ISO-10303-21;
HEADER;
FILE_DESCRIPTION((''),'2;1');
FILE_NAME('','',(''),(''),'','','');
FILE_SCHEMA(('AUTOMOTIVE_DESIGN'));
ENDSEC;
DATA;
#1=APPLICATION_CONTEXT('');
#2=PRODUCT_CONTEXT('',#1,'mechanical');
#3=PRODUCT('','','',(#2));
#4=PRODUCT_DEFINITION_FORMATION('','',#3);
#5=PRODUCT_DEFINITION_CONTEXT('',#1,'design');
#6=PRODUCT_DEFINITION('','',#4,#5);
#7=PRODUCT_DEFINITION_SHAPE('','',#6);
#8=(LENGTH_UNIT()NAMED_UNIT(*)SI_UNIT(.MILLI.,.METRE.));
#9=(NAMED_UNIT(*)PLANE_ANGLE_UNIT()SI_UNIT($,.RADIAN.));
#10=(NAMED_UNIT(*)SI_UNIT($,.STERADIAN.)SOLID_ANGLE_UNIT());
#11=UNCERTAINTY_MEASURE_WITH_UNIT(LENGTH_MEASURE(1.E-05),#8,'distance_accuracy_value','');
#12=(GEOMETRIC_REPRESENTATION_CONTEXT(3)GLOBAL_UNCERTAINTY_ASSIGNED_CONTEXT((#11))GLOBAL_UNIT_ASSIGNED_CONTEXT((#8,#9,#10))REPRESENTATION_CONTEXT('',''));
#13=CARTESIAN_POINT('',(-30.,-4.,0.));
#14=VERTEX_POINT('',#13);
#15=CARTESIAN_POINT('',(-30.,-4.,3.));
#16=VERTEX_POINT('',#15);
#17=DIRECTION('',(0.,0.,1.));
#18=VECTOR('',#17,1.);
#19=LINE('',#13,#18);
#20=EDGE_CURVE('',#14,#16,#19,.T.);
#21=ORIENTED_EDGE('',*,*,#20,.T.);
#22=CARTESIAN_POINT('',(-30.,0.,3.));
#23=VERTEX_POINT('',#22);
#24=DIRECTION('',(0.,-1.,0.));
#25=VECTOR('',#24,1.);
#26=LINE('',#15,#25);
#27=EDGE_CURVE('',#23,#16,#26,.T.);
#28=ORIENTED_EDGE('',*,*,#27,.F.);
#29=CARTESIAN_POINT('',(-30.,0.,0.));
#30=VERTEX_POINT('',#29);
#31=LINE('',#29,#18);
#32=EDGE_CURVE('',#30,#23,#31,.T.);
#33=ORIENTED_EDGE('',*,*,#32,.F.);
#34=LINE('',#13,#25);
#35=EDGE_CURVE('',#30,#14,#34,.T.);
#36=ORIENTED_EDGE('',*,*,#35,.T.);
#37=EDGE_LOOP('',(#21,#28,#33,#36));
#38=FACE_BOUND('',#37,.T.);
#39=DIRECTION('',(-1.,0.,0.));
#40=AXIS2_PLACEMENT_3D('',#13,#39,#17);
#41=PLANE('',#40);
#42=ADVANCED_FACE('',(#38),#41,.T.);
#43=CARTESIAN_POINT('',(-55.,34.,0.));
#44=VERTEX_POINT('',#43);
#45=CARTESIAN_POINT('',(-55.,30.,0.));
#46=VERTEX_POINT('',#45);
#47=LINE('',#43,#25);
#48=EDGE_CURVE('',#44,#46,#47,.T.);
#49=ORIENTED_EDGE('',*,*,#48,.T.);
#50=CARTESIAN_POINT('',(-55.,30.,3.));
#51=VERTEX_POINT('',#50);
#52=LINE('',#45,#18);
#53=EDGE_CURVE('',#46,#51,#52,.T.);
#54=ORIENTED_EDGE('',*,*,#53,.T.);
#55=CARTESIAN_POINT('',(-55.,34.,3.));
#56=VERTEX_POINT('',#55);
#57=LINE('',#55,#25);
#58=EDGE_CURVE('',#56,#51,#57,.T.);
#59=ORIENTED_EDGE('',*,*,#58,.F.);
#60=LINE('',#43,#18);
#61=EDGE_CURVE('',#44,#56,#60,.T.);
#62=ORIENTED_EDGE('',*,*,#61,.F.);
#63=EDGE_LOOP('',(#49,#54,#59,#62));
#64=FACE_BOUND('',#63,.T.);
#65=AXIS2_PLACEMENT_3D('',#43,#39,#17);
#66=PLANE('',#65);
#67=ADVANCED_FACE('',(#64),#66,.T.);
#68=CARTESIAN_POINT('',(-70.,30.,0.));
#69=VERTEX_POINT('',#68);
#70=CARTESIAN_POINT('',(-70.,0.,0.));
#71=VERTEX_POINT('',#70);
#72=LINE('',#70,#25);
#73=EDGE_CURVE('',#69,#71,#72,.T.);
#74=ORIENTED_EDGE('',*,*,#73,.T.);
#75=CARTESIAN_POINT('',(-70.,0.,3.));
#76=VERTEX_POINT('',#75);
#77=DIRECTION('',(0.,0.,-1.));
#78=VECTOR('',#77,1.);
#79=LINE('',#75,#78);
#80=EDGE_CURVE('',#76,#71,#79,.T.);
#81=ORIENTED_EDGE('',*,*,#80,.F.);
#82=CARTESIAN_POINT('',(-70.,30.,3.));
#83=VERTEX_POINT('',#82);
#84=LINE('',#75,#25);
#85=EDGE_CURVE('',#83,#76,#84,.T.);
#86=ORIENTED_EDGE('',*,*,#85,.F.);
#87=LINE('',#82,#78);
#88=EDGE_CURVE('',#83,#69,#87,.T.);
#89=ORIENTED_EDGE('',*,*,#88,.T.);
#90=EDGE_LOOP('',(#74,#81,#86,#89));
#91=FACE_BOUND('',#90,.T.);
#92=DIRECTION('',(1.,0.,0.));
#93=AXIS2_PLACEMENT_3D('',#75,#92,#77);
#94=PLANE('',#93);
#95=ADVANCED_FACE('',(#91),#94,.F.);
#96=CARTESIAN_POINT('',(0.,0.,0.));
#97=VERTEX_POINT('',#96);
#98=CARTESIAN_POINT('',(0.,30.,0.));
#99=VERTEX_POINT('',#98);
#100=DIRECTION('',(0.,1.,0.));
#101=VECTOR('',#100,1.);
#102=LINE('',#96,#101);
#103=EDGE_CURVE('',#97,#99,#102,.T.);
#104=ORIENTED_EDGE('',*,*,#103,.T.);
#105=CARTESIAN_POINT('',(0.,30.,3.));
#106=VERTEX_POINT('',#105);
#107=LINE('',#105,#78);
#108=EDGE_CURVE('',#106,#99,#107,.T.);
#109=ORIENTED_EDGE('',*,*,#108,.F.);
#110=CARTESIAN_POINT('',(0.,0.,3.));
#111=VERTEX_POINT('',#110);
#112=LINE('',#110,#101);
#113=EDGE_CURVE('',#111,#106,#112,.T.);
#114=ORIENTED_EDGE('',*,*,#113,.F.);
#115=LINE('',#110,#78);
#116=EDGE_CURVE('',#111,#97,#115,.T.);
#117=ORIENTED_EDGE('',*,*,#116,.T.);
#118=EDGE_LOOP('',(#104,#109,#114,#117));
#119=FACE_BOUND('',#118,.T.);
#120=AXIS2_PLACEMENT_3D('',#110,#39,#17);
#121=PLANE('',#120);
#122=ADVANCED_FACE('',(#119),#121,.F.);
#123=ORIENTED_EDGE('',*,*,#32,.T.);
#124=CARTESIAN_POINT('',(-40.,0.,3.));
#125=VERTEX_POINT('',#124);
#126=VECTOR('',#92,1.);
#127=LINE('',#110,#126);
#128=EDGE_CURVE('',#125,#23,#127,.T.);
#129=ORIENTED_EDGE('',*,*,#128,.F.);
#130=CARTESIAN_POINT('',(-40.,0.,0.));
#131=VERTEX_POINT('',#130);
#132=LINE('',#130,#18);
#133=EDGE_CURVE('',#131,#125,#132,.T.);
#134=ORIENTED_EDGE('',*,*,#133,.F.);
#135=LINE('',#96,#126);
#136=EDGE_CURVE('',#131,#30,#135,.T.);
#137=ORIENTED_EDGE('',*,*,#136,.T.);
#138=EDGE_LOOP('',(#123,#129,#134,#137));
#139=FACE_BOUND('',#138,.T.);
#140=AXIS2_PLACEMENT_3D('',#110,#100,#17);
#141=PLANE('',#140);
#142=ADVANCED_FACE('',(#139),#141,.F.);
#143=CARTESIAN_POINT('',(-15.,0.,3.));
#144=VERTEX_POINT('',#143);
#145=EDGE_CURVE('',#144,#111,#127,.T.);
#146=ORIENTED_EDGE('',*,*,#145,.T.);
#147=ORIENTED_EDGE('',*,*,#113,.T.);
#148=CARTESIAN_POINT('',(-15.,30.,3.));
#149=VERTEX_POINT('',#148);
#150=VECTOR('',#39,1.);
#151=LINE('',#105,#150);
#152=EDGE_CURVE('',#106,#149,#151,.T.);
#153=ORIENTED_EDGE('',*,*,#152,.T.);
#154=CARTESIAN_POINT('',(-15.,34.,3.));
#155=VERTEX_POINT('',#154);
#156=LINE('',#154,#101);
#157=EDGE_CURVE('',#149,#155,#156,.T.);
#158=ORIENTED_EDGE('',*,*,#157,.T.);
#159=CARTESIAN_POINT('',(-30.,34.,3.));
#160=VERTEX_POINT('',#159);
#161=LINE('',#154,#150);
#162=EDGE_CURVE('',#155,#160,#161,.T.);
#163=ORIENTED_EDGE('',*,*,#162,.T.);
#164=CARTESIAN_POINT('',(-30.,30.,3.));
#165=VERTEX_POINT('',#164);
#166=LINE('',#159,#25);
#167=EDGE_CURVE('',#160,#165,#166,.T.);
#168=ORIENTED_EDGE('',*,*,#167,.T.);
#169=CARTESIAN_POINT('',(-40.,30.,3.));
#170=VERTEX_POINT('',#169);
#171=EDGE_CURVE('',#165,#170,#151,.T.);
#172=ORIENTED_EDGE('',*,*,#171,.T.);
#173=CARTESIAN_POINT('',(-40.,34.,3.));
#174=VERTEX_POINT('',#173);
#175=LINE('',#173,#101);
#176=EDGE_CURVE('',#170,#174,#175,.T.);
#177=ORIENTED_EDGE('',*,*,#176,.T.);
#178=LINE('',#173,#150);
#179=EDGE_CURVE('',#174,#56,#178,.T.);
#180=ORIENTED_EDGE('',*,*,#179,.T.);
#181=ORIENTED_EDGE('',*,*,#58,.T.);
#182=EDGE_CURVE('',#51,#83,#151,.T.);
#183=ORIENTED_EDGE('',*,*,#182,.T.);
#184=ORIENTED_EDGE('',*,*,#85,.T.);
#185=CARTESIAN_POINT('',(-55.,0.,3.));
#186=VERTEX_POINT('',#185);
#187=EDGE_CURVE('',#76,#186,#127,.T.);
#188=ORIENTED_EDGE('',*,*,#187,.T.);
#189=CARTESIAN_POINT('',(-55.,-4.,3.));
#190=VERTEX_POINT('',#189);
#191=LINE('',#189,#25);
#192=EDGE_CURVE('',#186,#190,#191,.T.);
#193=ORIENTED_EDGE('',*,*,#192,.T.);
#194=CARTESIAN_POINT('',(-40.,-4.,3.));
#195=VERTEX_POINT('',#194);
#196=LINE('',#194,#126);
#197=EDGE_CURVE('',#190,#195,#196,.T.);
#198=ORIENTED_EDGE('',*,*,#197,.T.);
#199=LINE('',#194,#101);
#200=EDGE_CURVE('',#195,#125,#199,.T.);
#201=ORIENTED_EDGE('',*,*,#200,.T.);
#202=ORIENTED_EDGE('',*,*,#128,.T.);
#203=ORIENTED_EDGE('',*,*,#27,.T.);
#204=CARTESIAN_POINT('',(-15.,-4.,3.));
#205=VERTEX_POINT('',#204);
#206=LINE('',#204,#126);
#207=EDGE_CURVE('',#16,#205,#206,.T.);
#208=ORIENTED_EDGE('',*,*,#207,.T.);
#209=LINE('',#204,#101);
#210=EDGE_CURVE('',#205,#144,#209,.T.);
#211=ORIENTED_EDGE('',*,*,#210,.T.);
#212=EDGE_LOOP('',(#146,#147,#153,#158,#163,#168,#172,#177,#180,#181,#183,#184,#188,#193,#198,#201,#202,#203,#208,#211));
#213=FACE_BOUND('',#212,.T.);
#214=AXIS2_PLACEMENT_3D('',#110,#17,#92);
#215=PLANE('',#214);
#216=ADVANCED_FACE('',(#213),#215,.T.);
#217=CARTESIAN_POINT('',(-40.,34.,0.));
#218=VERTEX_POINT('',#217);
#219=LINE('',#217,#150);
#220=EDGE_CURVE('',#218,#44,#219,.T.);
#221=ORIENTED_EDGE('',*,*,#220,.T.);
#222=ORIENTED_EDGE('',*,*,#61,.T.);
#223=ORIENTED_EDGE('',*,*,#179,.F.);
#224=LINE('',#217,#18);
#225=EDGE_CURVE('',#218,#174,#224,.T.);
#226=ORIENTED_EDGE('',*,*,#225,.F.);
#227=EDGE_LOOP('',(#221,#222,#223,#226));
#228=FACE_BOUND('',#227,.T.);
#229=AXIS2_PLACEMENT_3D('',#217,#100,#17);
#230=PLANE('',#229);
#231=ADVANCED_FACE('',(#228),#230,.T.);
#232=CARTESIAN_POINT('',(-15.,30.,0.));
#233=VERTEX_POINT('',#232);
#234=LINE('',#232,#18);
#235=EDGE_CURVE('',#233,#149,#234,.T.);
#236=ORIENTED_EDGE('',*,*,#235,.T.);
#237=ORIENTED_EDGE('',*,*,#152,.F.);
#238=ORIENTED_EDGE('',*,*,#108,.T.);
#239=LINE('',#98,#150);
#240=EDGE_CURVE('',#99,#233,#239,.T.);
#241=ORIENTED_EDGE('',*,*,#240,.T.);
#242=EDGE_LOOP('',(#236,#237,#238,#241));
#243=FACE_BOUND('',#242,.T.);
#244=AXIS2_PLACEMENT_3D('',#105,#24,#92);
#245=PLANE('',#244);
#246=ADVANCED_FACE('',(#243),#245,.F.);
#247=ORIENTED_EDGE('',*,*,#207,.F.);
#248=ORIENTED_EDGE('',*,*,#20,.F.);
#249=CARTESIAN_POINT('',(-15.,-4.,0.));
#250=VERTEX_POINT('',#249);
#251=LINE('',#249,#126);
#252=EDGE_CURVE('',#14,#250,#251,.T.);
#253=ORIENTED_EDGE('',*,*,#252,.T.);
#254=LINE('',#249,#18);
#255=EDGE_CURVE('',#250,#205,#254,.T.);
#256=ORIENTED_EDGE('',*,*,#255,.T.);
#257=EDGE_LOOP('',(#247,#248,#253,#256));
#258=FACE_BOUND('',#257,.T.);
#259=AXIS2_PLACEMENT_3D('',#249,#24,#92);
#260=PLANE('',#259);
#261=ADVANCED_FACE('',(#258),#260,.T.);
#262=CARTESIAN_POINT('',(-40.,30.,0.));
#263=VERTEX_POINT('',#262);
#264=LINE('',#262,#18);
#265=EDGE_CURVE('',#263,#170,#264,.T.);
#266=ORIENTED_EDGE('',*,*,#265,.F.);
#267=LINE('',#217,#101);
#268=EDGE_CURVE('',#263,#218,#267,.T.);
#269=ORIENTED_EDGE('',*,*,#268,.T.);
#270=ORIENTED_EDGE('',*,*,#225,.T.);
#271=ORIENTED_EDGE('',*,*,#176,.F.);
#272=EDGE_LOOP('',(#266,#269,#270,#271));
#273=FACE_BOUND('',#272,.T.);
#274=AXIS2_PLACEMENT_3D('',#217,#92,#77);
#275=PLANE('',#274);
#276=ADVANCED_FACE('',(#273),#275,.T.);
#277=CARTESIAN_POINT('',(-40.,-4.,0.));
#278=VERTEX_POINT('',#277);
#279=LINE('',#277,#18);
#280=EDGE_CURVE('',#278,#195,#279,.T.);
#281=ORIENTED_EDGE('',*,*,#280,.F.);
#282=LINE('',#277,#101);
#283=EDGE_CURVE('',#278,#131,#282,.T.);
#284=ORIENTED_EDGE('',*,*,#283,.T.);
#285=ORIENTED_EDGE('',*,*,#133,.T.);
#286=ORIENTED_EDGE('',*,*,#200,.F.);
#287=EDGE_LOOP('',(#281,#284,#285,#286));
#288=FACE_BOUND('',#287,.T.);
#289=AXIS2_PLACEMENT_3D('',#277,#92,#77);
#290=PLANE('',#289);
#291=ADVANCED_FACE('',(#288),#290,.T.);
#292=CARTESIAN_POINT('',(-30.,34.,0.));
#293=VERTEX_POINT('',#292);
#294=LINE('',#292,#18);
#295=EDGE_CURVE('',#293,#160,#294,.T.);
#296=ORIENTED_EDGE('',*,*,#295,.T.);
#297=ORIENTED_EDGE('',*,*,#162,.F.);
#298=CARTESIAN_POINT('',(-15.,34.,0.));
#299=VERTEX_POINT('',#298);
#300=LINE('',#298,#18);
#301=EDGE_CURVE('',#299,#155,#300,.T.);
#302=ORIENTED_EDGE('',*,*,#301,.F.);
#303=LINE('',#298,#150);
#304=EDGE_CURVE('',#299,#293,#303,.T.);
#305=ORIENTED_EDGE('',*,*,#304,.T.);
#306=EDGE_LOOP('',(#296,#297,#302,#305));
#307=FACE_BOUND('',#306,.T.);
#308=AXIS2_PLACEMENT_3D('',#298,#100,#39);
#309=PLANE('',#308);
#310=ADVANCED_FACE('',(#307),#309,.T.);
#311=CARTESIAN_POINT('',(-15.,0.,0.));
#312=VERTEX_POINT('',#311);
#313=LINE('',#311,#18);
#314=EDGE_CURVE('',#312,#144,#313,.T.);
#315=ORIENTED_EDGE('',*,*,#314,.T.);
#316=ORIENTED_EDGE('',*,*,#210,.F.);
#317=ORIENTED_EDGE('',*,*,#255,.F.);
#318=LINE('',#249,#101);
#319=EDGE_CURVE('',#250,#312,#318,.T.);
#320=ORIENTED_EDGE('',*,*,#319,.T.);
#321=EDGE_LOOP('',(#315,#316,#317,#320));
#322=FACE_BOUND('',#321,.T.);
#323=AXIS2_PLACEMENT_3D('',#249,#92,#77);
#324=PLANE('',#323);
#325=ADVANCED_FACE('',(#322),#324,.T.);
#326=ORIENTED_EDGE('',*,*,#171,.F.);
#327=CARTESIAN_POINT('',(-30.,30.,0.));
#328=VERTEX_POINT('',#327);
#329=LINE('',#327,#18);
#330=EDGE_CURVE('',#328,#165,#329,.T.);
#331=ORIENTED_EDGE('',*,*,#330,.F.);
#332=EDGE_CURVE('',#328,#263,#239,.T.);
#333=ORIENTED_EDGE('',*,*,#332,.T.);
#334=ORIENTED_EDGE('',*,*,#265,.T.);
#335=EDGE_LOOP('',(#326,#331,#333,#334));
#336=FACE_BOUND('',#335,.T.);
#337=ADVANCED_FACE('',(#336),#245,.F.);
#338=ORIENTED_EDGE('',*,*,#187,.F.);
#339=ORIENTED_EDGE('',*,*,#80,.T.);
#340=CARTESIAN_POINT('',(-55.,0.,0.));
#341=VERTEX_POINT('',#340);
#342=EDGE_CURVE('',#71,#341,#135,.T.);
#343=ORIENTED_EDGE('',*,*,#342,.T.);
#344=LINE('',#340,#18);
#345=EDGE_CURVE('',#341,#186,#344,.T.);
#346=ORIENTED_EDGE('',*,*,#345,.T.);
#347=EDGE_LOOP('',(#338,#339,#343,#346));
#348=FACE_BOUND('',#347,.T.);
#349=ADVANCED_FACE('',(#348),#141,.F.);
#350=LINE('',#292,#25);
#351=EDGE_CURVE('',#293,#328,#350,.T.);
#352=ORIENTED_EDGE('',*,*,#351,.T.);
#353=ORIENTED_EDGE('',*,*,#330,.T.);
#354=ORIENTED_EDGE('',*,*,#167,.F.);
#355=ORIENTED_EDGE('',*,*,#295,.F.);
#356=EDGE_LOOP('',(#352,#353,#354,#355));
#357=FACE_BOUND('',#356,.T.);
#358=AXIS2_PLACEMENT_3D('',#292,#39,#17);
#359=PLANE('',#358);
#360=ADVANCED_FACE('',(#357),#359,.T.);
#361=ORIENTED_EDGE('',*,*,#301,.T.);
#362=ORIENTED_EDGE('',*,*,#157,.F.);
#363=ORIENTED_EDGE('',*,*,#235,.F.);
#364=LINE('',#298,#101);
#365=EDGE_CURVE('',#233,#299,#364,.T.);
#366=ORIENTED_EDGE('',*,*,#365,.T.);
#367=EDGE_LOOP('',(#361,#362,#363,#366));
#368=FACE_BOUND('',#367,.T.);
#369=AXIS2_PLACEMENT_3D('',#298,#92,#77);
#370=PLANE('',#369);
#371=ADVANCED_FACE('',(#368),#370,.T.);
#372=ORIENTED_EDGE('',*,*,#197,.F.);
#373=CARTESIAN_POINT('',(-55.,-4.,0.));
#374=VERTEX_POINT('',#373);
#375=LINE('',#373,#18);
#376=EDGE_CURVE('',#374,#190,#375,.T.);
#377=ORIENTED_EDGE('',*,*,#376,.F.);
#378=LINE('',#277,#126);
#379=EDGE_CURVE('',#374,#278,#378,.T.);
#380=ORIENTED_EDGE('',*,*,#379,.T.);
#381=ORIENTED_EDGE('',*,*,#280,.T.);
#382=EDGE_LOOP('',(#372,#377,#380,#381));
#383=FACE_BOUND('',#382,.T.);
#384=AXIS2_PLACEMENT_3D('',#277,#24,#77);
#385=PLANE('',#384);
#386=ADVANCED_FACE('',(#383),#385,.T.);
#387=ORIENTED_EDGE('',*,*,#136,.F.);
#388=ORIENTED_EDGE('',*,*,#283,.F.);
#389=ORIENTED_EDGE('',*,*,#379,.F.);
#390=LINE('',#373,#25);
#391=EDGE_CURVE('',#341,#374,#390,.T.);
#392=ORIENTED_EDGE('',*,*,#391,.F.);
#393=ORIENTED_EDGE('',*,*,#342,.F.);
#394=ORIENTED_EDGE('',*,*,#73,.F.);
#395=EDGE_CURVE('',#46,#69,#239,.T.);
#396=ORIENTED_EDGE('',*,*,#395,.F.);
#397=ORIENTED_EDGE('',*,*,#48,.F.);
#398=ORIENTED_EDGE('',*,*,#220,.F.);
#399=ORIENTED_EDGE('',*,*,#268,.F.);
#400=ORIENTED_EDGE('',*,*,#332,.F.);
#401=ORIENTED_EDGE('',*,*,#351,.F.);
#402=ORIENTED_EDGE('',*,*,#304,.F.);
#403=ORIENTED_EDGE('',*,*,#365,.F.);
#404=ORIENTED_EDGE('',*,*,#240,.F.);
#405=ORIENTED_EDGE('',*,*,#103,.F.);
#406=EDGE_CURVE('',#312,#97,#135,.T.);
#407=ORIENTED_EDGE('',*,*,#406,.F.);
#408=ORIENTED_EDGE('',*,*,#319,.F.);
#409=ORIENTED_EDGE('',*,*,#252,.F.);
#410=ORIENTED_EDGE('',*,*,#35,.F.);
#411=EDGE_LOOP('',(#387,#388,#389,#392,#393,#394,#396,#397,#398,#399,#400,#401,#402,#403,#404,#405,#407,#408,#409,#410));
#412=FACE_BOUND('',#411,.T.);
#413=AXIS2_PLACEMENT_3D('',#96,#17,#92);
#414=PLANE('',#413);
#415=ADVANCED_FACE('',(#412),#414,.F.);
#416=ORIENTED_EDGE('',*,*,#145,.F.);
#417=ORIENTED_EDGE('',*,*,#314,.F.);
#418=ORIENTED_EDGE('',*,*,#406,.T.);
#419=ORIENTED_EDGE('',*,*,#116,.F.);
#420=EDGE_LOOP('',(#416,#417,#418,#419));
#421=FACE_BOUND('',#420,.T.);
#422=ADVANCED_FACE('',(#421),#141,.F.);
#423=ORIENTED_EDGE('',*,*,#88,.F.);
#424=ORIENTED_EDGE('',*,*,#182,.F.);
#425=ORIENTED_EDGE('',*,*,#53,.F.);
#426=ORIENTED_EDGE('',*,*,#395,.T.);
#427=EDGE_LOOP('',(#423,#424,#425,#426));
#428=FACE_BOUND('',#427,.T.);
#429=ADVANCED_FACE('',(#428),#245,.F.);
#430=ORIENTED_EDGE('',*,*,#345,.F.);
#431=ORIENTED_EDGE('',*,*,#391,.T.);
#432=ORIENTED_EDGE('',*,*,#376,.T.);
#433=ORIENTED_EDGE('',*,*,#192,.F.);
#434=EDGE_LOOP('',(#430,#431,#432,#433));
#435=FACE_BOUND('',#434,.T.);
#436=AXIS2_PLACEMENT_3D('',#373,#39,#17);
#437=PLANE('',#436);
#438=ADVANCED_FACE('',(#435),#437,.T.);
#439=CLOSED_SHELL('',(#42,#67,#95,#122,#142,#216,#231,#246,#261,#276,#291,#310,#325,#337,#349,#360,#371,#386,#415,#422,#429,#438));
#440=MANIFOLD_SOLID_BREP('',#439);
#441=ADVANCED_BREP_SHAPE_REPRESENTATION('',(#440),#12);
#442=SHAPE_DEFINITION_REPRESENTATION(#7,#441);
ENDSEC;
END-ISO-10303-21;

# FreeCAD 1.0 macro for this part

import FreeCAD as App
import Part
import Sketcher
from FreeCAD import Vector
Q = App.Units.Quantity


def add_polygon(sketch, points):
    """Adds a closed chain of lines whose ends are joined by coincident constraints."""
    first, n = sketch.GeometryCount, len(points)
    for a, b in zip(points, points[1:] + points[:1]):
        sketch.addGeometry(Part.LineSegment(App.Vector(*a, 0), App.Vector(*b, 0)), False)
    for i in range(n):
        sketch.addConstraint(Sketcher.Constraint("Coincident", first + i, 2, first + (i + 1) % n, 1))

doc = App.newDocument("Part")
params = doc.addObject("Spreadsheet::Sheet", "Params")
for row, (alias, value) in enumerate([
    ("sketch1_width", "70 mm"),
    ("sketch1_height", "30 mm"),
    ("pad1_length", "3 mm"),
    ("sketch2_width", "15 mm"),
    ("sketch2_height", "4 mm"),
    ("pad2_length", "3 mm"),
], start=1):
    params.set(f"A{row}", alias)
    params.set(f"B{row}", "=" + value)
    params.setAlias(f"B{row}", alias)

body = doc.addObject("PartDesign::Body", "Body")

sketch1 = body.newObject("Sketcher::SketchObject", "Sketch")
sketch1.AttachmentSupport = (doc.getObject("XY_Plane"), [""])
sketch1.MapMode = "FlatFace"
add_polygon(sketch1, [(-70, 30), (-70, 0), (0, 0), (0, 30)])
sketch1.addConstraint([
    Sketcher.Constraint("Vertical", 0),
    Sketcher.Constraint("Horizontal", 1),
    Sketcher.Constraint("Vertical", 2),
    Sketcher.Constraint("Horizontal", 3),
    Sketcher.Constraint("Coincident", 1, 2, -1, 1),
    Sketcher.Constraint("DistanceX", 1, 1, 1, 2, Q("70 mm")),
    Sketcher.Constraint("DistanceY", 0, 2, 0, 1, Q("30 mm")),
])
sketch1.setExpression("Constraints[9]", "Params.sketch1_width")
sketch1.setExpression("Constraints[10]", "Params.sketch1_height")
pad1 = body.newObject("PartDesign::Pad", "Pad")
pad1.Profile = sketch1
pad1.setExpression("Length", "Params.pad1_length")

sketch2 = body.newObject("Sketcher::SketchObject", "Sketch001")
sketch2.AttachmentSupport = (doc.getObject("XY_Plane"), [""])
sketch2.MapMode = "FlatFace"
sketch2.AttachmentOffset = App.Placement(Vector(0, 0, 3), App.Rotation())
add_polygon(sketch2, [(-30, 34), (-30, 30), (-15, 30), (-15, 34)])
add_polygon(sketch2, [(-55, 34), (-55, 30), (-40, 30), (-40, 34)])
add_polygon(sketch2, [(-30, 0), (-30, -4), (-15, -4), (-15, 0)])
add_polygon(sketch2, [(-55, 0), (-55, -4), (-40, -4), (-40, 0)])
sketch2.addConstraint([
    Sketcher.Constraint("Vertical", 0),
    Sketcher.Constraint("Horizontal", 1),
    Sketcher.Constraint("Vertical", 2),
    Sketcher.Constraint("Horizontal", 3),
    Sketcher.Constraint("Vertical", 4),
    Sketcher.Constraint("Horizontal", 5),
    Sketcher.Constraint("Vertical", 6),
    Sketcher.Constraint("Horizontal", 7),
    Sketcher.Constraint("Vertical", 8),
    Sketcher.Constraint("Horizontal", 9),
    Sketcher.Constraint("Vertical", 10),
    Sketcher.Constraint("Horizontal", 11),
    Sketcher.Constraint("Vertical", 12),
    Sketcher.Constraint("Horizontal", 13),
    Sketcher.Constraint("Vertical", 14),
    Sketcher.Constraint("Horizontal", 15),
    Sketcher.Constraint("PointOnObject", 10, 2, -1),
    Sketcher.Constraint("PointOnObject", 14, 2, -1),
    Sketcher.Constraint("Horizontal", 1, 2, 4, 2),
    Sketcher.Constraint("Horizontal", 3, 2, 6, 2),
    Sketcher.Constraint("Horizontal", 9, 2, 12, 2),
    Sketcher.Constraint("Vertical", 3, 2, 8, 2),
    Sketcher.Constraint("Vertical", 2, 2, 9, 2),
    Sketcher.Constraint("Vertical", 7, 2, 12, 2),
    Sketcher.Constraint("Vertical", 6, 2, 13, 2),
    Sketcher.Constraint("Equal", 3, 5),
    Sketcher.Constraint("Equal", 6, 8),
    Sketcher.Constraint("DistanceX", 1, 1, 1, 2, Q("15 mm")),
    Sketcher.Constraint("DistanceY", 0, 2, 0, 1, Q("4 mm")),
    Sketcher.Constraint("DistanceX", 0, 2, -1, 1, Q("30 mm")),
    Sketcher.Constraint("DistanceY", -1, 1, 0, 2, Q("30 mm")),
    Sketcher.Constraint("DistanceX", 4, 2, -1, 1, Q("55 mm")),
])
sketch2.setExpression("Constraints[43]", "Params.sketch2_width")
sketch2.setExpression("Constraints[44]", "Params.sketch2_height")
pad2 = body.newObject("PartDesign::Pad", "Pad001")
pad2.Profile = sketch2
pad2.setExpression("Length", "Params.pad2_length")
pad2.Reversed = True

doc.recompute()
